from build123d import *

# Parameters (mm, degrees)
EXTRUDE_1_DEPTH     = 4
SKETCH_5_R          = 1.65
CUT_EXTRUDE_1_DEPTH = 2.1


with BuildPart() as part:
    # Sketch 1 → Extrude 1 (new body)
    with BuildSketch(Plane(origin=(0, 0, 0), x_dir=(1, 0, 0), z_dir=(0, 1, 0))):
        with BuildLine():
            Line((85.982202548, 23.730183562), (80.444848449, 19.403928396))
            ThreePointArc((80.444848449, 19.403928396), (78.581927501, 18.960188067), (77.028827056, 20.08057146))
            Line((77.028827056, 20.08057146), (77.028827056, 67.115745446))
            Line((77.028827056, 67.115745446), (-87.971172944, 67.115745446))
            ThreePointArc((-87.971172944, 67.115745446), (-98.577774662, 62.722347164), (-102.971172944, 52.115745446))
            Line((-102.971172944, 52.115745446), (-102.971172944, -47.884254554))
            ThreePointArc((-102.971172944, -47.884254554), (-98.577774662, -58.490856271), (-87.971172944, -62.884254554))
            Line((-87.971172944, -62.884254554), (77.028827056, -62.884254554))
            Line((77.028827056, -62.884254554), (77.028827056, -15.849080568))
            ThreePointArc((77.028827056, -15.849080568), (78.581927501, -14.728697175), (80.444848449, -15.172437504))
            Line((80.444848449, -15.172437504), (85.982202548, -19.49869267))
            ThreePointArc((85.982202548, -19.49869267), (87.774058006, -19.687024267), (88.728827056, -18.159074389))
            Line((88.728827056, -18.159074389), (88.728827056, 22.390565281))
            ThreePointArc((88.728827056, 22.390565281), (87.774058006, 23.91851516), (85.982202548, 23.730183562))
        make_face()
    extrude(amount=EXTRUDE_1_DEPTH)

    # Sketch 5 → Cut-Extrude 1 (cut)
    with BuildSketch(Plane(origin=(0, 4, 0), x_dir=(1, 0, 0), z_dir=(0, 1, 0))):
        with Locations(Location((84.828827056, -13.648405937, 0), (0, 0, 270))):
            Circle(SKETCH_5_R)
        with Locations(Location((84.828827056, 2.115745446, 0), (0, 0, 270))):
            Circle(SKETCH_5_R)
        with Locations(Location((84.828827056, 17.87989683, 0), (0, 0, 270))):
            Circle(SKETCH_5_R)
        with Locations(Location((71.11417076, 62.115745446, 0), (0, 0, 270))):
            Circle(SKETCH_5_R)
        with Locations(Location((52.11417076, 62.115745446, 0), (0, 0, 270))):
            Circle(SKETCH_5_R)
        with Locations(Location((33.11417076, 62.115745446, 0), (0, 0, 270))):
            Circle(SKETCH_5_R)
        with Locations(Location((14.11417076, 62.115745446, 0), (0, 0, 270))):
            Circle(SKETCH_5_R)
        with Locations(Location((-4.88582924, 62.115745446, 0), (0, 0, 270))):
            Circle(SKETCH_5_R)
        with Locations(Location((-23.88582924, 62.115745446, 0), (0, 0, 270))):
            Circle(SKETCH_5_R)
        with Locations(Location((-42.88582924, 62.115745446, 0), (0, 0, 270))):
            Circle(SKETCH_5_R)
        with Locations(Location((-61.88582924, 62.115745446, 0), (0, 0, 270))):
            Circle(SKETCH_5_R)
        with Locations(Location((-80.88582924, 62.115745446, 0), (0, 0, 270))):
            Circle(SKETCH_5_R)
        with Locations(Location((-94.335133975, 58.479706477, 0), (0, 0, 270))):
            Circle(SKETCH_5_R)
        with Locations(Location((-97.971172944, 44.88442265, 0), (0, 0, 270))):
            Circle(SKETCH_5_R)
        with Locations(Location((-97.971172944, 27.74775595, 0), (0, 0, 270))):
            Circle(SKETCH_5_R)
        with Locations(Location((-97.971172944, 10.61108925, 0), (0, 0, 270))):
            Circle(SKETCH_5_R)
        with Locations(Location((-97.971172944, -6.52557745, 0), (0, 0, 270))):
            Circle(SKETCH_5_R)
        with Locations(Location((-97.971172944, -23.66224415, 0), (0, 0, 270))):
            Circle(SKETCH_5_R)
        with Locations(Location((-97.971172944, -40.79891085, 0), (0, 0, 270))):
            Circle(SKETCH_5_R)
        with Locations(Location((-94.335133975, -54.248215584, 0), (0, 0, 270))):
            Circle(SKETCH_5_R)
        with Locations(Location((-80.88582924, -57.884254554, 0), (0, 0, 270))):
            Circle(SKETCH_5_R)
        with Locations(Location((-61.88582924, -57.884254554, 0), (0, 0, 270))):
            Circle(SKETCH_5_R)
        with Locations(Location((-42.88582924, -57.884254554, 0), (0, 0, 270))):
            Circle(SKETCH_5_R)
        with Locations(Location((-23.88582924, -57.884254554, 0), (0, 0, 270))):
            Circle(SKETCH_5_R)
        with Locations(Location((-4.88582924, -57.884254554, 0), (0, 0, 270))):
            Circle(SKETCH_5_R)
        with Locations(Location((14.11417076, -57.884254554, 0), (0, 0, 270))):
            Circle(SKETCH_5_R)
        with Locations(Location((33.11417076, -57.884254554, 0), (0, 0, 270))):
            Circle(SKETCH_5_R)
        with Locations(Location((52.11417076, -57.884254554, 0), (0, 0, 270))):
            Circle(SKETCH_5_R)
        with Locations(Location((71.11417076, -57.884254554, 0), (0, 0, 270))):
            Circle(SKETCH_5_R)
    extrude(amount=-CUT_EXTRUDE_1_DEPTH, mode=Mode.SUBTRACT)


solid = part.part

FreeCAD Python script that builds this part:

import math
import FreeCAD as App
import Part
import Sketcher

V = App.Vector
Q = App.Units.Quantity

doc = App.newDocument("Part")
body = doc.addObject("PartDesign::Body", "Body")

sketch1 = body.newObject("Sketcher::SketchObject", "Sketch")
sketch1.AttachmentSupport = (doc.getObject("XZ_Plane"), [""])
sketch1.MapMode = "FlatFace"
sketch1.addGeometry([
    Part.LineSegment(V(86, -23.7, 0), V(80.4, -19.4, 0)),
    Part.ArcOfCircle(Part.Circle(V(79, -21.2, 0), V(0, 0, 1), 2.3), math.radians(52), math.radians(150)),
    Part.LineSegment(V(77, -20.1, 0), V(77, -67.1, 0)),
    Part.LineSegment(V(77, -67.1, 0), V(-88, -67.1, 0)),
    Part.ArcOfCircle(Part.Circle(V(-88, -52.1, 0), V(0, 0, 1), 15), math.radians(180), math.radians(270)),
    Part.LineSegment(V(-103, -52.1, 0), V(-103, 47.9, 0)),
    Part.ArcOfCircle(Part.Circle(V(-88, 47.9, 0), V(0, 0, 1), 15), math.radians(90), math.radians(180)),
    Part.LineSegment(V(-88, 62.9, 0), V(77, 62.9, 0)),
    Part.LineSegment(V(77, 62.9, 0), V(77, 15.8, 0)),
    Part.ArcOfCircle(Part.Circle(V(79, 17, 0), V(0, 0, 1), 2.3), math.radians(-150), math.radians(-52)),
    Part.LineSegment(V(80.4, 15.2, 0), V(86, 19.5, 0)),
    Part.ArcOfCircle(Part.Circle(V(87, 18.2, 0), V(0, 0, 1), 1.7), math.radians(0), math.radians(128)),
    Part.LineSegment(V(88.7, 18.2, 0), V(88.7, -22.4, 0)),
    Part.ArcOfCircle(Part.Circle(V(87, -22.4, 0), V(0, 0, 1), 1.7), math.radians(-128), math.radians(0)),
], False)
sketch1.addConstraint([
    Sketcher.Constraint("Tangent", 0, 2, 1, 1),
    Sketcher.Constraint("Coincident", 1, 2, 2, 1),
    Sketcher.Constraint("Coincident", 2, 2, 3, 1),
    Sketcher.Constraint("Tangent", 3, 2, 4, 2),
    Sketcher.Constraint("Tangent", 4, 1, 5, 1),
    Sketcher.Constraint("Tangent", 5, 2, 6, 2),
    Sketcher.Constraint("Tangent", 6, 1, 7, 1),
    Sketcher.Constraint("Coincident", 7, 2, 8, 1),
    Sketcher.Constraint("Coincident", 8, 2, 9, 1),
    Sketcher.Constraint("Tangent", 9, 2, 10, 1),
    Sketcher.Constraint("Tangent", 10, 2, 11, 2),
    Sketcher.Constraint("Tangent", 11, 1, 12, 1),
    Sketcher.Constraint("Tangent", 12, 2, 13, 2),
    Sketcher.Constraint("Tangent", 13, 1, 0, 1),
    Sketcher.Constraint("Vertical", 2),
    Sketcher.Constraint("Horizontal", 3),
    Sketcher.Constraint("Vertical", 5),
    Sketcher.Constraint("Horizontal", 7),
    Sketcher.Constraint("Vertical", 8),
    Sketcher.Constraint("Vertical", 12),
    Sketcher.Constraint("Equal", 4, 6),
    Sketcher.Constraint("Equal", 1, 9),
    Sketcher.Constraint("Equal", 11, 13),
    Sketcher.Constraint("Vertical", 1, 3, 9, 3),
    Sketcher.Constraint("Vertical", 2, 2, 7, 2),
    Sketcher.Constraint("Vertical", 0, 2, 9, 2),
    Sketcher.Constraint("Equal", 2, 8),
    Sketcher.Constraint("Radius", 4, 15.0),
    Sketcher.Constraint("Radius", 1, 2.3),
    Sketcher.Constraint("Radius", 11, 1.7),
    Sketcher.Constraint("DistanceX", 3, 2, 3, 1, 165.0),
    Sketcher.Constraint("DistanceY", 5, 1, 5, 2, 100.0),
    Sketcher.Constraint("Angle", 0, Q("142 deg")),
    Sketcher.Constraint("DistanceX", 4, 3, 1, 3, 167.0),
    Sketcher.Constraint("DistanceX", 9, 3, 11, 3, 8.0),
    Sketcher.Constraint("DistanceY", 12, 2, 12, 1, 40.54964),
    Sketcher.Constraint("DistanceX", -1, 1, 0, 2, 80.444848),
    Sketcher.Constraint("DistanceY", 0, 2, -1, 1, 19.403928),
])
pad1 = body.newObject("PartDesign::Pad", "Pad")
pad1.Profile = sketch1
pad1.Length = 4
pad1.Reversed = True

sketch2 = body.newObject("Sketcher::SketchObject", "Sketch001")
sketch2.AttachmentSupport = (doc.getObject("XZ_Plane"), [""])
sketch2.MapMode = "FlatFace"
sketch2.AttachmentOffset = App.Placement(V(0, 0, -4), App.Rotation())
sketch2.addGeometry([
    Part.Circle(V(84.8, 13.6, 0), V(0, 0, 1), 1.6),
    Part.Circle(V(84.8, -2.1, 0), V(0, 0, 1), 1.6),
    Part.Circle(V(84.8, -17.9, 0), V(0, 0, 1), 1.6),
    Part.Circle(V(71.1, -62.1, 0), V(0, 0, 1), 1.6),
    Part.Circle(V(52.1, -62.1, 0), V(0, 0, 1), 1.6),
    Part.Circle(V(33.1, -62.1, 0), V(0, 0, 1), 1.6),
    Part.Circle(V(14.1, -62.1, 0), V(0, 0, 1), 1.6),
    Part.Circle(V(-4.9, -62.1, 0), V(0, 0, 1), 1.6),
    Part.Circle(V(-23.9, -62.1, 0), V(0, 0, 1), 1.6),
    Part.Circle(V(-42.9, -62.1, 0), V(0, 0, 1), 1.6),
    Part.Circle(V(-61.9, -62.1, 0), V(0, 0, 1), 1.6),
    Part.Circle(V(-80.9, -62.1, 0), V(0, 0, 1), 1.6),
    Part.Circle(V(-94.3, -58.5, 0), V(0, 0, 1), 1.6),
    Part.Circle(V(-98, -44.9, 0), V(0, 0, 1), 1.6),
    Part.Circle(V(-98, -27.7, 0), V(0, 0, 1), 1.6),
    Part.Circle(V(-98, -10.6, 0), V(0, 0, 1), 1.6),
    Part.Circle(V(-98, 6.5, 0), V(0, 0, 1), 1.6),
    Part.Circle(V(-98, 23.7, 0), V(0, 0, 1), 1.6),
    Part.Circle(V(-98, 40.8, 0), V(0, 0, 1), 1.6),
    Part.Circle(V(-94.3, 54.2, 0), V(0, 0, 1), 1.6),
    Part.Circle(V(-80.9, 57.9, 0), V(0, 0, 1), 1.6),
    Part.Circle(V(-61.9, 57.9, 0), V(0, 0, 1), 1.6),
    Part.Circle(V(-42.9, 57.9, 0), V(0, 0, 1), 1.6),
    Part.Circle(V(-23.9, 57.9, 0), V(0, 0, 1), 1.6),
    Part.Circle(V(-4.9, 57.9, 0), V(0, 0, 1), 1.6),
    Part.Circle(V(14.1, 57.9, 0), V(0, 0, 1), 1.6),
    Part.Circle(V(33.1, 57.9, 0), V(0, 0, 1), 1.6),
    Part.Circle(V(52.1, 57.9, 0), V(0, 0, 1), 1.6),
    Part.Circle(V(71.1, 57.9, 0), V(0, 0, 1), 1.6),
], False)
sketch2.addConstraint([
    Sketcher.Constraint("Equal", 0, 1),
    Sketcher.Constraint("Equal", 1, 2),
    Sketcher.Constraint("Equal", 2, 3),
    Sketcher.Constraint("Equal", 3, 4),
    Sketcher.Constraint("Equal", 4, 5),
    Sketcher.Constraint("Equal", 5, 6),
    Sketcher.Constraint("Equal", 6, 7),
    Sketcher.Constraint("Equal", 7, 8),
    Sketcher.Constraint("Equal", 8, 9),
    Sketcher.Constraint("Equal", 9, 10),
    Sketcher.Constraint("Equal", 10, 11),
    Sketcher.Constraint("Equal", 11, 12),
    Sketcher.Constraint("Equal", 12, 13),
    Sketcher.Constraint("Equal", 13, 14),
    Sketcher.Constraint("Equal", 14, 15),
    Sketcher.Constraint("Equal", 15, 16),
    Sketcher.Constraint("Equal", 16, 17),
    Sketcher.Constraint("Equal", 17, 18),
    Sketcher.Constraint("Equal", 18, 19),
    Sketcher.Constraint("Equal", 19, 20),
    Sketcher.Constraint("Equal", 20, 21),
    Sketcher.Constraint("Equal", 21, 22),
    Sketcher.Constraint("Equal", 22, 23),
    Sketcher.Constraint("Equal", 23, 24),
    Sketcher.Constraint("Equal", 24, 25),
    Sketcher.Constraint("Equal", 25, 26),
    Sketcher.Constraint("Equal", 26, 27),
    Sketcher.Constraint("Equal", 27, 28),
    Sketcher.Constraint("Horizontal", 3, 3, 4, 3),
    Sketcher.Constraint("Horizontal", 4, 3, 5, 3),
    Sketcher.Constraint("Horizontal", 5, 3, 6, 3),
    Sketcher.Constraint("Horizontal", 6, 3, 7, 3),
    Sketcher.Constraint("Horizontal", 7, 3, 8, 3),
    Sketcher.Constraint("Horizontal", 8, 3, 9, 3),
    Sketcher.Constraint("Horizontal", 9, 3, 10, 3),
    Sketcher.Constraint("Horizontal", 10, 3, 11, 3),
    Sketcher.Constraint("Horizontal", 20, 3, 21, 3),
    Sketcher.Constraint("Horizontal", 21, 3, 22, 3),
    Sketcher.Constraint("Horizontal", 22, 3, 23, 3),
    Sketcher.Constraint("Horizontal", 23, 3, 24, 3),
    Sketcher.Constraint("Horizontal", 24, 3, 25, 3),
    Sketcher.Constraint("Horizontal", 25, 3, 26, 3),
    Sketcher.Constraint("Horizontal", 26, 3, 27, 3),
    Sketcher.Constraint("Horizontal", 27, 3, 28, 3),
    Sketcher.Constraint("Vertical", 0, 3, 1, 3),
    Sketcher.Constraint("Vertical", 1, 3, 2, 3),
    Sketcher.Constraint("Vertical", 13, 3, 14, 3),
    Sketcher.Constraint("Vertical", 14, 3, 15, 3),
    Sketcher.Constraint("Vertical", 15, 3, 16, 3),
    Sketcher.Constraint("Vertical", 16, 3, 17, 3),
    Sketcher.Constraint("Vertical", 17, 3, 18, 3),
    Sketcher.Constraint("Vertical", 12, 3, 19, 3),
    Sketcher.Constraint("Vertical", 11, 3, 20, 3),
    Sketcher.Constraint("Vertical", 10, 3, 21, 3),
    Sketcher.Constraint("Vertical", 9, 3, 22, 3),
    Sketcher.Constraint("Vertical", 8, 3, 23, 3),
    Sketcher.Constraint("Vertical", 7, 3, 24, 3),
    Sketcher.Constraint("Vertical", 6, 3, 25, 3),
    Sketcher.Constraint("Vertical", 5, 3, 26, 3),
    Sketcher.Constraint("Vertical", 4, 3, 27, 3),
    Sketcher.Constraint("Vertical", 3, 3, 28, 3),
    Sketcher.Constraint("Diameter", 0, 3.3),
    Sketcher.Constraint("DistanceY", 3, 3, 1, 3, 60.0),
    Sketcher.Constraint("DistanceX", 4, 3, 3, 3, 19.0),
    Sketcher.Constraint("DistanceX", 5, 3, 4, 3, 19.0),
    Sketcher.Constraint("DistanceX", 6, 3, 5, 3, 19.0),
    Sketcher.Constraint("DistanceX", 7, 3, 6, 3, 19.0),
    Sketcher.Constraint("DistanceX", 8, 3, 7, 3, 19.0),
    Sketcher.Constraint("DistanceX", 9, 3, 8, 3, 19.0),
    Sketcher.Constraint("DistanceX", 10, 3, 9, 3, 19.0),
    Sketcher.Constraint("DistanceX", 11, 3, 10, 3, 19.0),
    Sketcher.Constraint("DistanceY", 1, 3, 27, 3, 60.0),
    Sketcher.Constraint("DistanceY", 13, 3, 16, 3, 51.41),
    Sketcher.Constraint("DistanceY", 14, 3, 17, 3, 51.41),
    Sketcher.Constraint("DistanceY", 15, 3, 18, 3, 51.41),
    Sketcher.Constraint("DistanceX", -1, 1, 3, 3, 71.114171),
    Sketcher.Constraint("DistanceY", 15, 3, -1, 1, 10.611089),
    Sketcher.Constraint("DistanceY", 1, 3, 0, 3, 15.764151),
    Sketcher.Constraint("DistanceY", 2, 3, 1, 3, 15.764151),
    Sketcher.Constraint("DistanceY", 11, 3, 12, 3, 3.636039),
    Sketcher.Constraint("DistanceX", 13, 3, 12, 3, 3.636039),
    Sketcher.Constraint("DistanceY", 12, 3, 14, 3, 30.731951),
    Sketcher.Constraint("DistanceY", 17, 3, 19, 3, 30.585971),
    Sketcher.Constraint("DistanceY", 16, 3, 19, 3, 47.722638),
    Sketcher.Constraint("DistanceX", -1, 1, 0, 3, 84.828827),
    Sketcher.Constraint("DistanceY", -1, 1, 0, 3, 13.648406),
    Sketcher.Constraint("DistanceX", 12, 3, -1, 1, 94.335134),
])
pocket1 = body.newObject("PartDesign::Pocket", "Pocket")
pocket1.Profile = sketch2
pocket1.Length = 2.1
pocket1.Reversed = True

doc.recompute()
